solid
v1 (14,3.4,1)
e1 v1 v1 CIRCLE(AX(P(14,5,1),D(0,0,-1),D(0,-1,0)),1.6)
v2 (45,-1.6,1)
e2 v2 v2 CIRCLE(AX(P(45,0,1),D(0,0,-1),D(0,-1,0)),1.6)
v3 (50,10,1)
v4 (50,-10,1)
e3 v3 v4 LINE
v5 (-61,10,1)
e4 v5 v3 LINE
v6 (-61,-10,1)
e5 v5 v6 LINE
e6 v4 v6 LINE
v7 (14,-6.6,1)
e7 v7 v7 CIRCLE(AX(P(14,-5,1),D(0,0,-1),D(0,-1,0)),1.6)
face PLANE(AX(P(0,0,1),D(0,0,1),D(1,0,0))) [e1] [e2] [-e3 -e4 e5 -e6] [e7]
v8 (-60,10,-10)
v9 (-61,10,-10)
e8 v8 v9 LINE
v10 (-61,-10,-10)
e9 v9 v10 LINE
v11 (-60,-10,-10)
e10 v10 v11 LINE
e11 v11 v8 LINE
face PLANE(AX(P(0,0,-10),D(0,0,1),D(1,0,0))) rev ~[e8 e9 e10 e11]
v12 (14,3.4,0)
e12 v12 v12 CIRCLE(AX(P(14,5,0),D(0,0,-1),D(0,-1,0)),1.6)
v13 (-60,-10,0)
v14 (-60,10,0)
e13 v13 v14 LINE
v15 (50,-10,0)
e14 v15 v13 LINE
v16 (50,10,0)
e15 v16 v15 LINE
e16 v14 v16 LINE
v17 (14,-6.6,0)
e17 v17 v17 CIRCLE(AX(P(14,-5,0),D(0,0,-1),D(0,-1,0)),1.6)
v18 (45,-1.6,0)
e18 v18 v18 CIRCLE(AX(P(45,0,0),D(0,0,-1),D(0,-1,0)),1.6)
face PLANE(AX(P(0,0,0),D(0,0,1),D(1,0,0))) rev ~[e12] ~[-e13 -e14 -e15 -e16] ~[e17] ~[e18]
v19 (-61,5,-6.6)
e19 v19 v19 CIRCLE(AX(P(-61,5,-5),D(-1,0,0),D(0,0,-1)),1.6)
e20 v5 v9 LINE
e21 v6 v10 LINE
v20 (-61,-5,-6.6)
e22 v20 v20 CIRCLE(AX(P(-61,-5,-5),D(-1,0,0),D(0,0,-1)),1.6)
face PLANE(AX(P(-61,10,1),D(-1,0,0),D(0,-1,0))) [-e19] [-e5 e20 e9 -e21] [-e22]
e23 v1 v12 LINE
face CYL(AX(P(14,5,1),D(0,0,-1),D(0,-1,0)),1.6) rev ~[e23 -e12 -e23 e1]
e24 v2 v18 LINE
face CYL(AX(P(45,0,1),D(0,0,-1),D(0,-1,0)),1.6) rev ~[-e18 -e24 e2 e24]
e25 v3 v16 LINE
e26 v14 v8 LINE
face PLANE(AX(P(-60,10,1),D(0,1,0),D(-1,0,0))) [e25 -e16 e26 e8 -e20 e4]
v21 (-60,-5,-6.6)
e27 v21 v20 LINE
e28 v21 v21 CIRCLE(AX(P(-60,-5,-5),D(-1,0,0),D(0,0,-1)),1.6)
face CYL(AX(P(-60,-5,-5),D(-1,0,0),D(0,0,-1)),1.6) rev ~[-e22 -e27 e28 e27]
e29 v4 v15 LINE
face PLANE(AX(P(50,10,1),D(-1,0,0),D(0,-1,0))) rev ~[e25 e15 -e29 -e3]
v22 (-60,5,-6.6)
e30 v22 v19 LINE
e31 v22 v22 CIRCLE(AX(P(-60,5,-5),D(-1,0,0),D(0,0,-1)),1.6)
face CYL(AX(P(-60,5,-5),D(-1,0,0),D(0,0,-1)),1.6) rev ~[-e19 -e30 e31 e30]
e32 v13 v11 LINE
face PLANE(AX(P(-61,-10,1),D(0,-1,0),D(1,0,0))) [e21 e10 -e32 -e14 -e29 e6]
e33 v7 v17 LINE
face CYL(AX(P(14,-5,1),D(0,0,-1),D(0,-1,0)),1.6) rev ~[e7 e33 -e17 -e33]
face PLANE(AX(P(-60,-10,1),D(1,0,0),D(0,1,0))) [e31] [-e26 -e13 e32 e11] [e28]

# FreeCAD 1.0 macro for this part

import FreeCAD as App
import Part
import Sketcher
from FreeCAD import Vector
Q = App.Units.Quantity

doc = App.newDocument("Part")
body = doc.addObject("PartDesign::Body", "Body")

# Sketch on XY plane
sketch1 = doc.addObject("Sketcher::SketchObject", "Sketch")
body.addObject(sketch1)
sketch1.AttachmentSupport = (doc.XY_Plane, [""])
sketch1.MapMode = "FlatFace"
sketch1.addGeometry([
    Part.LineSegment(Vector(60, 10, 0), Vector(-60, 10, 0)),
    Part.LineSegment(Vector(-60, 10, 0), Vector(-60, -10, 0)),
    Part.LineSegment(Vector(-60, -10, 0), Vector(60, -10, 0)),
    Part.LineSegment(Vector(60, -10, 0), Vector(60, 10, 0)),
], False)
sketch1.addConstraint([
    Sketcher.Constraint("Coincident", 0, 2, 1, 1),
    Sketcher.Constraint("Coincident", 1, 2, 2, 1),
    Sketcher.Constraint("Coincident", 2, 2, 3, 1),
    Sketcher.Constraint("Coincident", 3, 2, 0, 1),
    Sketcher.Constraint("Horizontal", 0),
    Sketcher.Constraint("Vertical", 1),
    Sketcher.Constraint("Horizontal", 2),
    Sketcher.Constraint("Vertical", 3),
    Sketcher.Constraint("Symmetric", 0, 2, 2, 2, -1, 1),
    Sketcher.Constraint("DistanceX", 0, 2, 0, 1, Q("120 mm")),
    Sketcher.Constraint("DistanceY", 1, 2, 1, 1, Q("20 mm")),
])
pad1 = doc.addObject("PartDesign::Pad", "Pad")
body.addObject(pad1)
pad1.Profile = sketch1
pad1.Length = 1

# Sketch on XY plane
sketch2 = doc.addObject("Sketcher::SketchObject", "Sketch001")
body.addObject(sketch2)
sketch2.AttachmentSupport = (doc.XY_Plane, [""])
sketch2.MapMode = "FlatFace"
sketch2.AttachmentOffset = App.Placement(Vector(0, 0, 1), App.Rotation())
sketch2.addGeometry([
    Part.Circle(Vector(14, 5, 0), Vector(0, 0, 1), 1.6),
    Part.Circle(Vector(14, -5, 0), Vector(0, 0, 1), 1.6),
    Part.Circle(Vector(45, 0, 0), Vector(0, 0, 1), 1.6),
], False)
sketch2.addConstraint([
    Sketcher.Constraint("Equal", 0, 1),
    Sketcher.Constraint("Equal", 1, 2),
    Sketcher.Constraint("Symmetric", 0, 3, 1, 3, -1),
    Sketcher.Constraint("PointOnObject", 2, 3, -1),
    Sketcher.Constraint("Diameter", 0, Q("3.2 mm")),
    Sketcher.Constraint("DistanceX", -1, 1, 0, 3, Q("14 mm")),
    Sketcher.Constraint("DistanceY", -1, 1, 0, 3, Q("5 mm")),
    Sketcher.Constraint("DistanceX", -1, 1, 2, 3, Q("45 mm")),
])
doc.recompute()
hole = doc.addObject("PartDesign::Hole", "Hole")
body.addObject(hole)
hole.Profile = sketch2
hole.ThreadType = "None"
hole.Diameter = 3.2
hole.DepthType = "ThroughAll"

# Sketch on XY plane
sketch3 = doc.addObject("Sketcher::SketchObject", "Sketch002")
body.addObject(sketch3)
sketch3.AttachmentSupport = (doc.XY_Plane, [""])
sketch3.MapMode = "FlatFace"
sketch3.AttachmentOffset = App.Placement(Vector(0, 0, 1), App.Rotation())
sketch3.addGeometry([
    Part.LineSegment(Vector(-60, -10, 0), Vector(-60, 10, 0)),
    Part.LineSegment(Vector(-60, 10, 0), Vector(-61, 10, 0)),
    Part.LineSegment(Vector(-61, 10, 0), Vector(-61, -10, 0)),
    Part.LineSegment(Vector(-61, -10, 0), Vector(-60, -10, 0)),
], False)
sketch3.addConstraint([
    Sketcher.Constraint("Coincident", 0, 2, 1, 1),
    Sketcher.Constraint("Coincident", 1, 2, 2, 1),
    Sketcher.Constraint("Coincident", 2, 2, 3, 1),
    Sketcher.Constraint("Coincident", 3, 2, 0, 1),
    Sketcher.Constraint("Vertical", 0),
    Sketcher.Constraint("Horizontal", 1),
    Sketcher.Constraint("Vertical", 2),
    Sketcher.Constraint("Horizontal", 3),
    Sketcher.Constraint("DistanceX", 1, 2, 1, 1, Q("1 mm")),
    Sketcher.Constraint("DistanceY", 0, 1, 0, 2, Q("20 mm")),
    Sketcher.Constraint("DistanceX", 0, 2, -1, 1, Q("60 mm")),
    Sketcher.Constraint("DistanceY", -1, 1, 0, 2, Q("10 mm")),
])
pad2 = doc.addObject("PartDesign::Pad", "Pad001")
body.addObject(pad2)
pad2.Profile = sketch3
pad2.Length = 11
pad2.Reversed = True

# Sketch on YZ plane
sketch4 = doc.addObject("Sketcher::SketchObject", "Sketch003")
body.addObject(sketch4)
sketch4.AttachmentSupport = (doc.YZ_Plane, [""])
sketch4.MapMode = "FlatFace"
sketch4.AttachmentOffset = App.Placement(Vector(0, 0, -60), App.Rotation())
sketch4.addGeometry([
    Part.Circle(Vector(5, -5, 0), Vector(0, 0, 1), 1.6),
    Part.Circle(Vector(-5, -5, 0), Vector(0, 0, 1), 1.6),
], False)
sketch4.addConstraint([
    Sketcher.Constraint("Equal", 0, 1),
    Sketcher.Constraint("Symmetric", 0, 3, 1, 3, -2),
    Sketcher.Constraint("Diameter", 0, Q("3.2 mm")),
    Sketcher.Constraint("DistanceX", -1, 1, 0, 3, Q("5 mm")),
    Sketcher.Constraint("DistanceY", 0, 3, -1, 1, Q("5 mm")),
])
doc.recompute()
hole2 = doc.addObject("PartDesign::Hole", "Hole001")
body.addObject(hole2)
hole2.Profile = sketch4
hole2.ThreadType = "None"
hole2.Diameter = 3.2
hole2.DepthType = "ThroughAll"

# Sketch on XY plane
sketch5 = doc.addObject("Sketcher::SketchObject", "Sketch004")
body.addObject(sketch5)
sketch5.AttachmentSupport = (doc.XY_Plane, [""])
sketch5.MapMode = "FlatFace"
sketch5.AttachmentOffset = App.Placement(Vector(0, 0, 1), App.Rotation())
sketch5.addGeometry([
    Part.LineSegment(Vector(50, 10, 0), Vector(50, -10, 0)),
    Part.LineSegment(Vector(50, -10, 0), Vector(60, -10, 0)),
    Part.LineSegment(Vector(60, -10, 0), Vector(60, 10, 0)),
    Part.LineSegment(Vector(60, 10, 0), Vector(50, 10, 0)),
], False)
sketch5.addConstraint([
    Sketcher.Constraint("Coincident", 0, 2, 1, 1),
    Sketcher.Constraint("Coincident", 1, 2, 2, 1),
    Sketcher.Constraint("Coincident", 2, 2, 3, 1),
    Sketcher.Constraint("Coincident", 3, 2, 0, 1),
    Sketcher.Constraint("Vertical", 0),
    Sketcher.Constraint("Horizontal", 1),
    Sketcher.Constraint("Vertical", 2),
    Sketcher.Constraint("Horizontal", 3),
    Sketcher.Constraint("DistanceX", 1, 1, 1, 2, Q("10 mm")),
    Sketcher.Constraint("DistanceY", 0, 2, -1, 1, Q("10 mm")),
    Sketcher.Constraint("DistanceY", -1, 1, 2, 2, Q("10 mm")),
    Sketcher.Constraint("DistanceX", -1, 1, 0, 2, Q("50 mm")),
])
pocket1 = doc.addObject("PartDesign::Pocket", "Pocket")
body.addObject(pocket1)
pocket1.Profile = sketch5
pocket1.Length = 10

doc.recompute()
